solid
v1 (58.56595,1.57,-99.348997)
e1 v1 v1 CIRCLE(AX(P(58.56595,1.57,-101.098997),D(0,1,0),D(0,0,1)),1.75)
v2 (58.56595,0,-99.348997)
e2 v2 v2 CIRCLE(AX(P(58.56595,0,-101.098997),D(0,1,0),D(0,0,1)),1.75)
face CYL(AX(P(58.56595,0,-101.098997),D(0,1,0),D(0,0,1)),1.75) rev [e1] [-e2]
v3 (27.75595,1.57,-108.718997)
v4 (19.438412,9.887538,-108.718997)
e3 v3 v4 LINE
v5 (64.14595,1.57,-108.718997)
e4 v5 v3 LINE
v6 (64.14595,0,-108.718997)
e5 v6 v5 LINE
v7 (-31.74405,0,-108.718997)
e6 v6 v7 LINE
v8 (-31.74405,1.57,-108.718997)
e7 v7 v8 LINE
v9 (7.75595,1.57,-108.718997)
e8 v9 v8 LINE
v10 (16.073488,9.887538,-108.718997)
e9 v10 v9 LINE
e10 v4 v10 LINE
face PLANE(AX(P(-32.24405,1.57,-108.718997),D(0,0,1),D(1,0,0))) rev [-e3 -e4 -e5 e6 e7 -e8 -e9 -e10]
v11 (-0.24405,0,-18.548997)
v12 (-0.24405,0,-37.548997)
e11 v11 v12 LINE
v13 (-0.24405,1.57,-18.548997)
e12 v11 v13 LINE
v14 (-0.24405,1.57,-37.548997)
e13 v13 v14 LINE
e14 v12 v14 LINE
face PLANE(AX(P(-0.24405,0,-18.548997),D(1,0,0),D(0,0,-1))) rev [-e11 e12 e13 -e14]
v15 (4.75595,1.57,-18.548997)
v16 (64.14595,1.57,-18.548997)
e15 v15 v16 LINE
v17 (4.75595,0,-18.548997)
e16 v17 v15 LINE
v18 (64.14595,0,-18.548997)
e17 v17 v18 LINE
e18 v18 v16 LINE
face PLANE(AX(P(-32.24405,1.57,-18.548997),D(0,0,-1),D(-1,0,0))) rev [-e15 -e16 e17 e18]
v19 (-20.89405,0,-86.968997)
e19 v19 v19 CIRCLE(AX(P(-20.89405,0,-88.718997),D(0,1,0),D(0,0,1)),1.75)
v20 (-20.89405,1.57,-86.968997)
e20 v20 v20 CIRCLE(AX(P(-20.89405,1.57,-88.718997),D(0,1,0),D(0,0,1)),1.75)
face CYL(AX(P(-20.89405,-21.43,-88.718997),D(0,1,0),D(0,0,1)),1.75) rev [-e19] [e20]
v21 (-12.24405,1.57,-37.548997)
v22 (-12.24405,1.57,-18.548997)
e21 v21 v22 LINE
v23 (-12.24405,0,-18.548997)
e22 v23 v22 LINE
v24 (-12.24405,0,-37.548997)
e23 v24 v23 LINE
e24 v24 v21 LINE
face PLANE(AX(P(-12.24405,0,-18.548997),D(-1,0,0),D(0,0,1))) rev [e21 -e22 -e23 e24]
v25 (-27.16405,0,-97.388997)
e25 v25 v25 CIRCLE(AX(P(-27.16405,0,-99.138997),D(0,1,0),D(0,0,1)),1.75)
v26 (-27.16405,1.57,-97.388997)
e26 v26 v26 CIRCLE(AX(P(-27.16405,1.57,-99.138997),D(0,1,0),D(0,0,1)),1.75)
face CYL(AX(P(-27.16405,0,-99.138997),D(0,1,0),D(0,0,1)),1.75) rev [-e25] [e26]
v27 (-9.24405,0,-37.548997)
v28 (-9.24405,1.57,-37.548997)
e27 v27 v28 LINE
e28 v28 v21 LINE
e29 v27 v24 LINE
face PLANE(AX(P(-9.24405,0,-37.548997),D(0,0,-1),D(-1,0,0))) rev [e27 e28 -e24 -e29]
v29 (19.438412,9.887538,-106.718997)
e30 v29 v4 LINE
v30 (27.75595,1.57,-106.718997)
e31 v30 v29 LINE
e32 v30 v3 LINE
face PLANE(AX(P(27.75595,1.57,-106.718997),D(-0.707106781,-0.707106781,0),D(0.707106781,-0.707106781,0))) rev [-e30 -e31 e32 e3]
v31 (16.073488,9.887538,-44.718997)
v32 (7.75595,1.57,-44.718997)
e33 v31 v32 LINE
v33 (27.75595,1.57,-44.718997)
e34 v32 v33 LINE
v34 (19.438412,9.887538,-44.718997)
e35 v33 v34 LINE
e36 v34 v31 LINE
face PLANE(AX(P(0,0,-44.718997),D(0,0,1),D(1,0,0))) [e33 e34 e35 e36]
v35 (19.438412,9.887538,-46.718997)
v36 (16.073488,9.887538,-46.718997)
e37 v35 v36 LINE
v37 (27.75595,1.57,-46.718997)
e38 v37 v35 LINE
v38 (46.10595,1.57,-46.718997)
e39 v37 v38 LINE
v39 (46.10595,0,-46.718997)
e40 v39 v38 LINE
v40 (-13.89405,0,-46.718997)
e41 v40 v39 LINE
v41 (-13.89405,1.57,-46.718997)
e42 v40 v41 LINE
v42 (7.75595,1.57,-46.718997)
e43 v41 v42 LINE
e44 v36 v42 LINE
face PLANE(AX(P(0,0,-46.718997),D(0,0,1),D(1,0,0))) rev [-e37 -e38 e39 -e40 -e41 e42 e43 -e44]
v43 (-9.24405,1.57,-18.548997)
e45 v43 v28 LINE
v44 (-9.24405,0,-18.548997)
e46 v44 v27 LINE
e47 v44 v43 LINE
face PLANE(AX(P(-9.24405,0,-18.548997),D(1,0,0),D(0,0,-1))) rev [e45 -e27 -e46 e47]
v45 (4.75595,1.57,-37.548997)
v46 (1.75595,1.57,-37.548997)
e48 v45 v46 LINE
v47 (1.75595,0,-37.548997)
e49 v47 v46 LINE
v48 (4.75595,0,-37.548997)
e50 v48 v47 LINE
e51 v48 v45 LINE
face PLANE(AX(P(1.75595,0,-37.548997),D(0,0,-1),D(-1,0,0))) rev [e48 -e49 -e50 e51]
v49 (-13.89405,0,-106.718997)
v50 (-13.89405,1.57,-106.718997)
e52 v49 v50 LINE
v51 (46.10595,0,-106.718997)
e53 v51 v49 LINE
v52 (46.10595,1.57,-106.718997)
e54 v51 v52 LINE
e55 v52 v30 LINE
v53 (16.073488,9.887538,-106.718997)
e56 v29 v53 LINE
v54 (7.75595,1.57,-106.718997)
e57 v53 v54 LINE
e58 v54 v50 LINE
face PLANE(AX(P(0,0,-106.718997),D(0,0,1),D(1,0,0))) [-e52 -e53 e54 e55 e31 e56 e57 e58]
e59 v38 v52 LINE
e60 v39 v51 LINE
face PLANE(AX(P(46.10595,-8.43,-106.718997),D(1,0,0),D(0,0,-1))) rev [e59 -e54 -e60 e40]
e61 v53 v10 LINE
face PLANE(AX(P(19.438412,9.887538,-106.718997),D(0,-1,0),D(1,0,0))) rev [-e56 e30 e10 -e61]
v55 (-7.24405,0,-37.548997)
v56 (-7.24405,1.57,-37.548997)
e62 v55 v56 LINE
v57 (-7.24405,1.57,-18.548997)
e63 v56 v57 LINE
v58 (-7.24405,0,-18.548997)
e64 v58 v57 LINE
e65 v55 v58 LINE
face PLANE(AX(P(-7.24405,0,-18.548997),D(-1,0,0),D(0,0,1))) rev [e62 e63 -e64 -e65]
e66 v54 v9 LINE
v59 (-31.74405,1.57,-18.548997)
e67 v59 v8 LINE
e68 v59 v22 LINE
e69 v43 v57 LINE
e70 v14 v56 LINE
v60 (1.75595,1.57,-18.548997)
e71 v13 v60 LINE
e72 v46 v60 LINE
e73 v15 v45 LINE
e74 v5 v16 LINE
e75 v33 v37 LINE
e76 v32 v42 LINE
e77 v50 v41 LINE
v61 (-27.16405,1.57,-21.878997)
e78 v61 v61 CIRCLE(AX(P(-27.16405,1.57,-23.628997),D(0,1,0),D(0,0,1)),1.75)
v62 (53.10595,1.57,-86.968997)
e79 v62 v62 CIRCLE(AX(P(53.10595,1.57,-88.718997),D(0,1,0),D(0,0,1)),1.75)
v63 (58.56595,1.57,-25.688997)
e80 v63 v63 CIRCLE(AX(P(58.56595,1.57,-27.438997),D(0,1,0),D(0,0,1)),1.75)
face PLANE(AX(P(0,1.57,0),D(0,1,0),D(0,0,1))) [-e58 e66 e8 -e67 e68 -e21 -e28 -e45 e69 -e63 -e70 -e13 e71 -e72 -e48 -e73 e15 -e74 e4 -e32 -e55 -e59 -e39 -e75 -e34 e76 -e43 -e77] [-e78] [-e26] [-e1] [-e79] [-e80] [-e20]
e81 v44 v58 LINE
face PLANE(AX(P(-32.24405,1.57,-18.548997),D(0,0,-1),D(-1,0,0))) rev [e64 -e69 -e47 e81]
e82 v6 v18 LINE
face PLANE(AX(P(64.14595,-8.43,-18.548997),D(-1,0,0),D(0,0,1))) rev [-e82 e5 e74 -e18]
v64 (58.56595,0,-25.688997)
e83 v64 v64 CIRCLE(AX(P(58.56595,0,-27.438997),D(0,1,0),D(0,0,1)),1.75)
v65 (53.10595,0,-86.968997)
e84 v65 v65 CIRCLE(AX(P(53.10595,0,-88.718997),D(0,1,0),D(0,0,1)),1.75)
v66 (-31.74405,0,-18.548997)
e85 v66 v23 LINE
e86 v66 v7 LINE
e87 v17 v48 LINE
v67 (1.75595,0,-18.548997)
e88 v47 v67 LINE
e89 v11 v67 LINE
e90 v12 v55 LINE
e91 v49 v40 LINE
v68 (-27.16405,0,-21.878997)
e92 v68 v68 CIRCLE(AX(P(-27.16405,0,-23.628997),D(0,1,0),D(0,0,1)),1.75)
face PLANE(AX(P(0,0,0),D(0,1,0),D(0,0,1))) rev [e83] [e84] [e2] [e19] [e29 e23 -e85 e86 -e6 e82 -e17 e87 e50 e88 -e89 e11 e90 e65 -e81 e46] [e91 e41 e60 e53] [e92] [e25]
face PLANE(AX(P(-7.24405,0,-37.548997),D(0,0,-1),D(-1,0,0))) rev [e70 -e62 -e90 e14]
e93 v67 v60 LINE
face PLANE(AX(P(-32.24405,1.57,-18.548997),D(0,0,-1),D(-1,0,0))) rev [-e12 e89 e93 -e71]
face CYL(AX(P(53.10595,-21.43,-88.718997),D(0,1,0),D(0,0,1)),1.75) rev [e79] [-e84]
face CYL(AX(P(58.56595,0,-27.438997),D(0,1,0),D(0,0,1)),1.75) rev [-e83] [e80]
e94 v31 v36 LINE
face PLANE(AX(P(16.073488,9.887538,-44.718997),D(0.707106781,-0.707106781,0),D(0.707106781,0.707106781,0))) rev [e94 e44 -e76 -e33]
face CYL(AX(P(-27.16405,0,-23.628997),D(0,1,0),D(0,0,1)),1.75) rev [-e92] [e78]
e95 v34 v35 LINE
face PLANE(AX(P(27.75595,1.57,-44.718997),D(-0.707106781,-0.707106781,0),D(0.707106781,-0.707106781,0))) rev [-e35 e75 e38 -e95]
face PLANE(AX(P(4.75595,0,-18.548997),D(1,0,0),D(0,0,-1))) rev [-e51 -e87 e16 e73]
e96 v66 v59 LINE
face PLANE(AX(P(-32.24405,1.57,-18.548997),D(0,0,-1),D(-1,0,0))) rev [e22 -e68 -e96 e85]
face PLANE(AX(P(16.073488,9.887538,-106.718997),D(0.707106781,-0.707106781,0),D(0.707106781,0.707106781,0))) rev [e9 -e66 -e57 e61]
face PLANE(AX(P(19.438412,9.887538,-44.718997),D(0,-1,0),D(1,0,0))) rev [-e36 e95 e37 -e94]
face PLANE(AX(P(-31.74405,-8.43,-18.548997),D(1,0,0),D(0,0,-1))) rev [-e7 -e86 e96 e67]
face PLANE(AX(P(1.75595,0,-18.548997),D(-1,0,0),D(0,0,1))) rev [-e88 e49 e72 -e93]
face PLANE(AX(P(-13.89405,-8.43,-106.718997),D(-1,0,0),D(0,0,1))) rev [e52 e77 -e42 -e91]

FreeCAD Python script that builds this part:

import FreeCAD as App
import Part
import Sketcher


def add_polygon(sketch, points):
    """Adds a closed chain of lines whose ends are joined by coincident constraints."""
    first, n = sketch.GeometryCount, len(points)
    for a, b in zip(points, points[1:] + points[:1]):
        sketch.addGeometry(Part.LineSegment(App.Vector(*a, 0), App.Vector(*b, 0)), False)
    for i in range(n):
        sketch.addConstraint(Sketcher.Constraint("Coincident", first + i, 2, first + (i + 1) % n, 1))

doc = App.newDocument("Part")
body = doc.addObject("PartDesign::Body", "Body")

# Sketch on XZ plane
sketch1 = doc.addObject("Sketcher::SketchObject", "Sketch")
body.addObject(sketch1)
sketch1.AttachmentSupport = (doc.XZ_Plane, [""])
sketch1.MapMode = "FlatFace"
add_polygon(sketch1, [(-32.24405, -108.718997), (-32.24405, -18.548997), (64.64595, -18.548997), (64.64595, -108.718997)])  # lines 0-3
sketch1.addConstraint([
    Sketcher.Constraint("Vertical", 0),
    Sketcher.Constraint("Horizontal", 1),
    Sketcher.Constraint("Vertical", 2),
    Sketcher.Constraint("Horizontal", 3),
    Sketcher.Constraint("DistanceX", 1, 1, 1, 2, 96.89),
    Sketcher.Constraint("DistanceY", 0, 1, 0, 2, 90.17),
    Sketcher.Constraint("DistanceX", 0, 2, -1, 1, 32.24405),
    Sketcher.Constraint("DistanceY", 0, 2, -1, 1, 18.548997),
])
pad1 = doc.addObject("PartDesign::Pad", "Pad")
body.addObject(pad1)
pad1.Profile = sketch1
pad1.Length = 1.57
pad1.Reversed = True

# Sketch on XZ plane
sketch2 = doc.addObject("Sketcher::SketchObject", "Sketch001")
body.addObject(sketch2)
sketch2.AttachmentSupport = (doc.XZ_Plane, [""])
sketch2.MapMode = "FlatFace"
sketch2.AttachmentOffset = App.Placement(App.Vector(0, 0, -1.57), App.Rotation())
sketch2.addGeometry([
    Part.Circle(App.Vector(58.56595, -27.438997, 0), App.Vector(0, 0, 1), 1.75),
    Part.Circle(App.Vector(-27.16405, -23.628997, 0), App.Vector(0, 0, 1), 1.75),
    Part.Circle(App.Vector(-27.16405, -99.138997, 0), App.Vector(0, 0, 1), 1.75),
    Part.Circle(App.Vector(58.56595, -101.098997, 0), App.Vector(0, 0, 1), 1.75),
], False)
sketch2.addConstraint([
    Sketcher.Constraint("Equal", 0, 1),
    Sketcher.Constraint("Equal", 1, 2),
    Sketcher.Constraint("Equal", 2, 3),
    Sketcher.Constraint("Vertical", 1, 3, 2, 3),
    Sketcher.Constraint("Vertical", 0, 3, 3, 3),
    Sketcher.Constraint("Diameter", 0, 3.5),
    Sketcher.Constraint("DistanceY", 2, 3, 0, 3, 71.7),
    Sketcher.Constraint("DistanceX", 1, 3, 0, 3, 85.73),
    Sketcher.Constraint("DistanceY", 0, 3, 1, 3, 3.81),
    Sketcher.Constraint("DistanceY", 3, 3, 0, 3, 73.66),
    Sketcher.Constraint("DistanceX", -1, 1, 0, 3, 58.56595),
    Sketcher.Constraint("DistanceY", 0, 3, -1, 1, 27.438997),
])
pocket1 = doc.addObject("PartDesign::Pocket", "Pocket")
body.addObject(pocket1)
pocket1.Profile = sketch2
pocket1.Length = 1.57
pocket1.Reversed = True

# Sketch on XZ plane
sketch3 = doc.addObject("Sketcher::SketchObject", "Sketch002")
body.addObject(sketch3)
sketch3.AttachmentSupport = (doc.XZ_Plane, [""])
sketch3.MapMode = "FlatFace"
sketch3.AttachmentOffset = App.Placement(App.Vector(0, 0, -1.57), App.Rotation())
sketch3.addGeometry([
    Part.Circle(App.Vector(-20.89405, -88.718997, 0), App.Vector(0, 0, 1), 1.75),
    Part.Circle(App.Vector(53.10595, -88.718997, 0), App.Vector(0, 0, 1), 1.75),
], False)
sketch3.addConstraint([
    Sketcher.Constraint("Equal", 0, 1),
    Sketcher.Constraint("Horizontal", 0, 3, 1, 3),
    Sketcher.Constraint("Diameter", 0, 3.5),
    Sketcher.Constraint("DistanceX", 0, 3, 1, 3, 74.0),
    Sketcher.Constraint("DistanceX", 0, 3, -1, 1, 20.89405),
    Sketcher.Constraint("DistanceY", 0, 3, -1, 1, 88.718997),
])
pocket2 = doc.addObject("PartDesign::Pocket", "Pocket001")
body.addObject(pocket2)
pocket2.Profile = sketch3
pocket2.Length = 23
pocket2.Reversed = True

# Sketch on XY plane
sketch4 = doc.addObject("Sketcher::SketchObject", "Sketch003")
body.addObject(sketch4)
sketch4.AttachmentSupport = (doc.XY_Plane, [""])
sketch4.MapMode = "FlatFace"
sketch4.AttachmentOffset = App.Placement(App.Vector(0, 0, -46.718997), App.Rotation())
add_polygon(sketch4, [(27.75595, 1.57), (19.438412, 9.887538), (16.073488, 9.887538), (7.75595, 1.57)])  # lines 0-3
sketch4.addConstraint([
    Sketcher.Constraint("Horizontal", 1),
    Sketcher.Constraint("Horizontal", 3),
    Sketcher.Constraint("Perpendicular", 0, 2),
    Sketcher.Constraint("Equal", 0, 2),
    Sketcher.Constraint("DistanceX", 3, 1, 3, 2, 20.0),
    Sketcher.Constraint("DistanceY", -1, 1, 2, 2, 1.57),
    Sketcher.Constraint("DistanceX", 1, 2, 1, 1, 3.364924),
    Sketcher.Constraint("DistanceX", -1, 1, 2, 2, 7.75595),
])
pad2 = doc.addObject("PartDesign::Pad", "Pad001")
body.addObject(pad2)
pad2.Profile = sketch4
pad2.Length = 2

# Sketch on XY plane
sketch5 = doc.addObject("Sketcher::SketchObject", "Sketch004")
body.addObject(sketch5)
sketch5.AttachmentSupport = (doc.XY_Plane, [""])
sketch5.MapMode = "FlatFace"
sketch5.AttachmentOffset = App.Placement(App.Vector(0, 0, -108.718997), App.Rotation())
add_polygon(sketch5, [(27.75595, 1.57), (19.438412, 9.887538), (16.073488, 9.887538), (7.75595, 1.57)])  # lines 0-3
sketch5.addConstraint([
    Sketcher.Constraint("Horizontal", 1),
    Sketcher.Constraint("Horizontal", 3),
    Sketcher.Constraint("Perpendicular", 0, 2),
    Sketcher.Constraint("Equal", 0, 2),
    Sketcher.Constraint("DistanceX", 3, 1, 3, 2, 20.0),
    Sketcher.Constraint("DistanceY", -1, 1, 2, 2, 1.57),
    Sketcher.Constraint("DistanceX", 1, 2, 1, 1, 3.364924),
    Sketcher.Constraint("DistanceX", -1, 1, 2, 2, 7.75595),
])
pad3 = doc.addObject("PartDesign::Pad", "Pad002")
body.addObject(pad3)
pad3.Profile = sketch5
pad3.Length = 2

# Sketch on XZ plane
sketch6 = doc.addObject("Sketcher::SketchObject", "Sketch005")
body.addObject(sketch6)
sketch6.AttachmentSupport = (doc.XZ_Plane, [""])
sketch6.MapMode = "FlatFace"
sketch6.AttachmentOffset = App.Placement(App.Vector(0, 0, -1.57), App.Rotation())
add_polygon(sketch6, [(-12.24405, -37.548997), (-12.24405, -18.548997), (-9.24405, -18.548997), (-9.24405, -37.548997)])  # lines 0-3
add_polygon(sketch6, [(-7.24405, -37.548997), (-7.24405, -18.548997), (-0.24405, -18.548997), (-0.24405, -37.548997)])  # lines 4-7
add_polygon(sketch6, [(1.75595, -37.548997), (1.75595, -18.548997), (4.75595, -18.548997), (4.75595, -37.548997)])  # lines 8-11
sketch6.addConstraint([
    Sketcher.Constraint("Vertical", 0),
    Sketcher.Constraint("Horizontal", 1),
    Sketcher.Constraint("Vertical", 2),
    Sketcher.Constraint("Horizontal", 3),
    Sketcher.Constraint("Vertical", 4),
    Sketcher.Constraint("Horizontal", 5),
    Sketcher.Constraint("Vertical", 6),
    Sketcher.Constraint("Horizontal", 7),
    Sketcher.Constraint("Vertical", 8),
    Sketcher.Constraint("Horizontal", 9),
    Sketcher.Constraint("Vertical", 10),
    Sketcher.Constraint("Horizontal", 11),
    Sketcher.Constraint("Horizontal", 1, 2, 4, 2),
    Sketcher.Constraint("Horizontal", 3, 2, 6, 2),
    Sketcher.Constraint("Horizontal", 5, 2, 8, 2),
    Sketcher.Constraint("Horizontal", 7, 2, 10, 2),
    Sketcher.Constraint("Equal", 3, 9),
    Sketcher.Constraint("DistanceX", 1, 1, 1, 2, 3.0),
    Sketcher.Constraint("DistanceX", 5, 1, 5, 2, 7.0),
    Sketcher.Constraint("DistanceY", 0, 1, 0, 2, 19.0),
    Sketcher.Constraint("DistanceX", 1, 2, 4, 2, 2.0),
    Sketcher.Constraint("DistanceX", 5, 2, 8, 2, 2.0),
    Sketcher.Constraint("DistanceX", 0, 2, -1, 1, 12.24405),
    Sketcher.Constraint("DistanceY", 0, 2, -1, 1, 18.548997),
])
pocket3 = doc.addObject("PartDesign::Pocket", "Pocket002")
body.addObject(pocket3)
pocket3.Profile = sketch6
pocket3.Type = "ThroughAll"
pocket3.Reversed = True

# Sketch on XZ plane
sketch7 = doc.addObject("Sketcher::SketchObject", "Sketch006")
body.addObject(sketch7)
sketch7.AttachmentSupport = (doc.XZ_Plane, [""])
sketch7.MapMode = "FlatFace"
sketch7.AttachmentOffset = App.Placement(App.Vector(0, 0, -1.57), App.Rotation())
add_polygon(sketch7, [(-32.24405, -108.718997), (-32.24405, -18.548997), (-31.74405, -18.548997), (-31.74405, -108.718997)])  # lines 0-3
add_polygon(sketch7, [(64.14595, -108.718997), (64.14595, -18.548997), (64.64595, -18.548997), (64.64595, -108.718997)])  # lines 4-7
sketch7.addConstraint([
    Sketcher.Constraint("Vertical", 0),
    Sketcher.Constraint("Horizontal", 1),
    Sketcher.Constraint("Vertical", 2),
    Sketcher.Constraint("Horizontal", 3),
    Sketcher.Constraint("Vertical", 4),
    Sketcher.Constraint("Horizontal", 5),
    Sketcher.Constraint("Vertical", 6),
    Sketcher.Constraint("Horizontal", 7),
    Sketcher.Constraint("Horizontal", 1, 2, 4, 2),
    Sketcher.Constraint("Horizontal", 3, 2, 6, 2),
    Sketcher.Constraint("Equal", 3, 5),
    Sketcher.Constraint("DistanceX", 1, 1, 1, 2, 0.5),
    Sketcher.Constraint("DistanceY", 0, 1, 0, 2, 90.17),
    Sketcher.Constraint("DistanceX", 1, 2, 4, 2, 95.89),
    Sketcher.Constraint("DistanceX", 0, 2, -1, 1, 32.24405),
    Sketcher.Constraint("DistanceY", 0, 2, -1, 1, 18.548997),
])
pocket4 = doc.addObject("PartDesign::Pocket", "Pocket003")
body.addObject(pocket4)
pocket4.Profile = sketch7
pocket4.Length = 10
pocket4.Reversed = True

# Sketch on XZ plane
sketch8 = doc.addObject("Sketcher::SketchObject", "Sketch007")
body.addObject(sketch8)
sketch8.AttachmentSupport = (doc.XZ_Plane, [""])
sketch8.MapMode = "FlatFace"
sketch8.AttachmentOffset = App.Placement(App.Vector(0, 0, -1.57), App.Rotation())
add_polygon(sketch8, [(-13.89405, -106.718997), (-13.89405, -46.718997), (46.10595, -46.718997), (46.10595, -106.718997)])  # lines 0-3
sketch8.addConstraint([
    Sketcher.Constraint("Vertical", 0),
    Sketcher.Constraint("Horizontal", 1),
    Sketcher.Constraint("Vertical", 2),
    Sketcher.Constraint("Horizontal", 3),
    Sketcher.Constraint("Equal", 3, 0),
    Sketcher.Constraint("DistanceX", 1, 1, 1, 2, 60.0),
    Sketcher.Constraint("DistanceX", 0, 2, -1, 1, 13.89405),
    Sketcher.Constraint("DistanceY", 0, 2, -1, 1, 46.718997),
])
pocket5 = doc.addObject("PartDesign::Pocket", "Pocket004")
body.addObject(pocket5)
pocket5.Profile = sketch8
pocket5.Length = 10
pocket5.Reversed = True

doc.recompute()
